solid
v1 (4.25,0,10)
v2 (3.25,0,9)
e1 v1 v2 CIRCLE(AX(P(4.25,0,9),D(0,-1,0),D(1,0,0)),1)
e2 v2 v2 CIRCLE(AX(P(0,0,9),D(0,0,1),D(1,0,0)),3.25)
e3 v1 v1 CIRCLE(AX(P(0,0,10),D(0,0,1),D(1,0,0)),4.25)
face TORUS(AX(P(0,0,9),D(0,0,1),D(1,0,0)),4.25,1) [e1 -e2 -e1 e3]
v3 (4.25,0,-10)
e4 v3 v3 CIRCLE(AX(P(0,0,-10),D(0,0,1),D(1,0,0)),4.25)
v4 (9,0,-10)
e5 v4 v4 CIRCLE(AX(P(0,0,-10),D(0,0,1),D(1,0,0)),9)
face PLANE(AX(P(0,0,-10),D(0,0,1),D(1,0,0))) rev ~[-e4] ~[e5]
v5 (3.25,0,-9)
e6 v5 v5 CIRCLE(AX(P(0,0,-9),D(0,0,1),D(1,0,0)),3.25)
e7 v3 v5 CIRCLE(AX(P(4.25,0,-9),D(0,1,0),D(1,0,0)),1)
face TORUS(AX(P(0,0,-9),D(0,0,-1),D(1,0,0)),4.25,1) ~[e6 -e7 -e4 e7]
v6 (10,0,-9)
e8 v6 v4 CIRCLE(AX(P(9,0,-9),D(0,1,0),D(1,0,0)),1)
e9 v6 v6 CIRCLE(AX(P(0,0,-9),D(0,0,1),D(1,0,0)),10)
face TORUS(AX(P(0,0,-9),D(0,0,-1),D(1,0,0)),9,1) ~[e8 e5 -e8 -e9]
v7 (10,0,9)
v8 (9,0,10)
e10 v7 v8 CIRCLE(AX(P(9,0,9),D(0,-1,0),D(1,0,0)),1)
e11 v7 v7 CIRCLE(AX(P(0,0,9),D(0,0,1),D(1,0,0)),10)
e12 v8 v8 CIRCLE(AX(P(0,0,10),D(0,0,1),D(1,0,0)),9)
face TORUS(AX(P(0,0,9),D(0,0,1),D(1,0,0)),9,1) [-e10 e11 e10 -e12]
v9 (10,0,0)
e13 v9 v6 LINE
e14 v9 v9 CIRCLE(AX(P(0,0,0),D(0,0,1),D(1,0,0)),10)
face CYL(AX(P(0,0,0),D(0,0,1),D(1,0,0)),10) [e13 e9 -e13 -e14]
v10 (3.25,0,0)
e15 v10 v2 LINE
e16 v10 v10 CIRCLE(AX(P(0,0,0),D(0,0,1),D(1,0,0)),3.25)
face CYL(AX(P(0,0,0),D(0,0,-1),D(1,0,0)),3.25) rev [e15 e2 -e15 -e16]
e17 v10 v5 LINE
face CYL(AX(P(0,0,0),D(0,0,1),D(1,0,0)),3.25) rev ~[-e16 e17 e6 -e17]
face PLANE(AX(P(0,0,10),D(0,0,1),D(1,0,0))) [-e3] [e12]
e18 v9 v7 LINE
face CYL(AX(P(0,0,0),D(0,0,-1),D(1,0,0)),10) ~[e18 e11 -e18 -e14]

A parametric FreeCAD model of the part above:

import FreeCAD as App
import Part
import Sketcher
from FreeCAD import Vector
Q = App.Units.Quantity


def edges_at(feature, points):
    """Names of the edges that pass closest to the given points."""
    edges = feature.Shape.Edges
    near = lambda p: min(range(len(edges)), key=lambda i: edges[i].distToShape(Part.Vertex(*p))[0])
    return sorted({f"Edge{near(p) + 1}" for p in points})

doc = App.newDocument("Part")
params = doc.addObject("Spreadsheet::Sheet", "Params")
for row, (alias, value) in enumerate([
    ("sketch1_diameter", "20 mm"),
    ("sketch1_diameter2", "6.5 mm"),
    ("pad1_length", "20 mm"),
    ("fillet_radius", "1 mm"),
], start=1):
    params.set(f"A{row}", alias)
    params.set(f"B{row}", "=" + value)
    params.setAlias(f"B{row}", alias)

body = doc.addObject("PartDesign::Body", "Body")

# Sketch on XY plane
sketch1 = body.newObject("Sketcher::SketchObject", "Sketch")
sketch1.AttachmentSupport = (doc.getObject("XY_Plane"), [""])
sketch1.MapMode = "FlatFace"
sketch1.addGeometry([
    Part.Circle(Vector(0, 0, 0), Vector(0, 0, 1), 10),
    Part.Circle(Vector(0, 0, 0), Vector(0, 0, 1), 3.25),
], False)
sketch1.addConstraint([
    Sketcher.Constraint("Coincident", 0, 3, -1, 1),
    Sketcher.Constraint("Coincident", 1, 3, -1, 1),
    Sketcher.Constraint("Diameter", 0, Q("20 mm")),
    Sketcher.Constraint("Diameter", 1, Q("6.5 mm")),
])
sketch1.setExpression("Constraints[2]", "Params.sketch1_diameter")
sketch1.setExpression("Constraints[3]", "Params.sketch1_diameter2")
pad1 = body.newObject("PartDesign::Pad", "Pad")
pad1.Profile = sketch1
pad1.setExpression("Length", "Params.pad1_length")
pad1.Midplane = True
doc.recompute()

fillet = body.newObject("PartDesign::Fillet", "Fillet")
fillet.Base = (pad1, edges_at(pad1, [
    (-10, 0, 10),
    (-3.25, 0, 10),
    (-3.25, 0, -10),
    (-10, 0, -10),
]))
fillet.setExpression("Radius", "Params.fillet_radius")

doc.recompute()
